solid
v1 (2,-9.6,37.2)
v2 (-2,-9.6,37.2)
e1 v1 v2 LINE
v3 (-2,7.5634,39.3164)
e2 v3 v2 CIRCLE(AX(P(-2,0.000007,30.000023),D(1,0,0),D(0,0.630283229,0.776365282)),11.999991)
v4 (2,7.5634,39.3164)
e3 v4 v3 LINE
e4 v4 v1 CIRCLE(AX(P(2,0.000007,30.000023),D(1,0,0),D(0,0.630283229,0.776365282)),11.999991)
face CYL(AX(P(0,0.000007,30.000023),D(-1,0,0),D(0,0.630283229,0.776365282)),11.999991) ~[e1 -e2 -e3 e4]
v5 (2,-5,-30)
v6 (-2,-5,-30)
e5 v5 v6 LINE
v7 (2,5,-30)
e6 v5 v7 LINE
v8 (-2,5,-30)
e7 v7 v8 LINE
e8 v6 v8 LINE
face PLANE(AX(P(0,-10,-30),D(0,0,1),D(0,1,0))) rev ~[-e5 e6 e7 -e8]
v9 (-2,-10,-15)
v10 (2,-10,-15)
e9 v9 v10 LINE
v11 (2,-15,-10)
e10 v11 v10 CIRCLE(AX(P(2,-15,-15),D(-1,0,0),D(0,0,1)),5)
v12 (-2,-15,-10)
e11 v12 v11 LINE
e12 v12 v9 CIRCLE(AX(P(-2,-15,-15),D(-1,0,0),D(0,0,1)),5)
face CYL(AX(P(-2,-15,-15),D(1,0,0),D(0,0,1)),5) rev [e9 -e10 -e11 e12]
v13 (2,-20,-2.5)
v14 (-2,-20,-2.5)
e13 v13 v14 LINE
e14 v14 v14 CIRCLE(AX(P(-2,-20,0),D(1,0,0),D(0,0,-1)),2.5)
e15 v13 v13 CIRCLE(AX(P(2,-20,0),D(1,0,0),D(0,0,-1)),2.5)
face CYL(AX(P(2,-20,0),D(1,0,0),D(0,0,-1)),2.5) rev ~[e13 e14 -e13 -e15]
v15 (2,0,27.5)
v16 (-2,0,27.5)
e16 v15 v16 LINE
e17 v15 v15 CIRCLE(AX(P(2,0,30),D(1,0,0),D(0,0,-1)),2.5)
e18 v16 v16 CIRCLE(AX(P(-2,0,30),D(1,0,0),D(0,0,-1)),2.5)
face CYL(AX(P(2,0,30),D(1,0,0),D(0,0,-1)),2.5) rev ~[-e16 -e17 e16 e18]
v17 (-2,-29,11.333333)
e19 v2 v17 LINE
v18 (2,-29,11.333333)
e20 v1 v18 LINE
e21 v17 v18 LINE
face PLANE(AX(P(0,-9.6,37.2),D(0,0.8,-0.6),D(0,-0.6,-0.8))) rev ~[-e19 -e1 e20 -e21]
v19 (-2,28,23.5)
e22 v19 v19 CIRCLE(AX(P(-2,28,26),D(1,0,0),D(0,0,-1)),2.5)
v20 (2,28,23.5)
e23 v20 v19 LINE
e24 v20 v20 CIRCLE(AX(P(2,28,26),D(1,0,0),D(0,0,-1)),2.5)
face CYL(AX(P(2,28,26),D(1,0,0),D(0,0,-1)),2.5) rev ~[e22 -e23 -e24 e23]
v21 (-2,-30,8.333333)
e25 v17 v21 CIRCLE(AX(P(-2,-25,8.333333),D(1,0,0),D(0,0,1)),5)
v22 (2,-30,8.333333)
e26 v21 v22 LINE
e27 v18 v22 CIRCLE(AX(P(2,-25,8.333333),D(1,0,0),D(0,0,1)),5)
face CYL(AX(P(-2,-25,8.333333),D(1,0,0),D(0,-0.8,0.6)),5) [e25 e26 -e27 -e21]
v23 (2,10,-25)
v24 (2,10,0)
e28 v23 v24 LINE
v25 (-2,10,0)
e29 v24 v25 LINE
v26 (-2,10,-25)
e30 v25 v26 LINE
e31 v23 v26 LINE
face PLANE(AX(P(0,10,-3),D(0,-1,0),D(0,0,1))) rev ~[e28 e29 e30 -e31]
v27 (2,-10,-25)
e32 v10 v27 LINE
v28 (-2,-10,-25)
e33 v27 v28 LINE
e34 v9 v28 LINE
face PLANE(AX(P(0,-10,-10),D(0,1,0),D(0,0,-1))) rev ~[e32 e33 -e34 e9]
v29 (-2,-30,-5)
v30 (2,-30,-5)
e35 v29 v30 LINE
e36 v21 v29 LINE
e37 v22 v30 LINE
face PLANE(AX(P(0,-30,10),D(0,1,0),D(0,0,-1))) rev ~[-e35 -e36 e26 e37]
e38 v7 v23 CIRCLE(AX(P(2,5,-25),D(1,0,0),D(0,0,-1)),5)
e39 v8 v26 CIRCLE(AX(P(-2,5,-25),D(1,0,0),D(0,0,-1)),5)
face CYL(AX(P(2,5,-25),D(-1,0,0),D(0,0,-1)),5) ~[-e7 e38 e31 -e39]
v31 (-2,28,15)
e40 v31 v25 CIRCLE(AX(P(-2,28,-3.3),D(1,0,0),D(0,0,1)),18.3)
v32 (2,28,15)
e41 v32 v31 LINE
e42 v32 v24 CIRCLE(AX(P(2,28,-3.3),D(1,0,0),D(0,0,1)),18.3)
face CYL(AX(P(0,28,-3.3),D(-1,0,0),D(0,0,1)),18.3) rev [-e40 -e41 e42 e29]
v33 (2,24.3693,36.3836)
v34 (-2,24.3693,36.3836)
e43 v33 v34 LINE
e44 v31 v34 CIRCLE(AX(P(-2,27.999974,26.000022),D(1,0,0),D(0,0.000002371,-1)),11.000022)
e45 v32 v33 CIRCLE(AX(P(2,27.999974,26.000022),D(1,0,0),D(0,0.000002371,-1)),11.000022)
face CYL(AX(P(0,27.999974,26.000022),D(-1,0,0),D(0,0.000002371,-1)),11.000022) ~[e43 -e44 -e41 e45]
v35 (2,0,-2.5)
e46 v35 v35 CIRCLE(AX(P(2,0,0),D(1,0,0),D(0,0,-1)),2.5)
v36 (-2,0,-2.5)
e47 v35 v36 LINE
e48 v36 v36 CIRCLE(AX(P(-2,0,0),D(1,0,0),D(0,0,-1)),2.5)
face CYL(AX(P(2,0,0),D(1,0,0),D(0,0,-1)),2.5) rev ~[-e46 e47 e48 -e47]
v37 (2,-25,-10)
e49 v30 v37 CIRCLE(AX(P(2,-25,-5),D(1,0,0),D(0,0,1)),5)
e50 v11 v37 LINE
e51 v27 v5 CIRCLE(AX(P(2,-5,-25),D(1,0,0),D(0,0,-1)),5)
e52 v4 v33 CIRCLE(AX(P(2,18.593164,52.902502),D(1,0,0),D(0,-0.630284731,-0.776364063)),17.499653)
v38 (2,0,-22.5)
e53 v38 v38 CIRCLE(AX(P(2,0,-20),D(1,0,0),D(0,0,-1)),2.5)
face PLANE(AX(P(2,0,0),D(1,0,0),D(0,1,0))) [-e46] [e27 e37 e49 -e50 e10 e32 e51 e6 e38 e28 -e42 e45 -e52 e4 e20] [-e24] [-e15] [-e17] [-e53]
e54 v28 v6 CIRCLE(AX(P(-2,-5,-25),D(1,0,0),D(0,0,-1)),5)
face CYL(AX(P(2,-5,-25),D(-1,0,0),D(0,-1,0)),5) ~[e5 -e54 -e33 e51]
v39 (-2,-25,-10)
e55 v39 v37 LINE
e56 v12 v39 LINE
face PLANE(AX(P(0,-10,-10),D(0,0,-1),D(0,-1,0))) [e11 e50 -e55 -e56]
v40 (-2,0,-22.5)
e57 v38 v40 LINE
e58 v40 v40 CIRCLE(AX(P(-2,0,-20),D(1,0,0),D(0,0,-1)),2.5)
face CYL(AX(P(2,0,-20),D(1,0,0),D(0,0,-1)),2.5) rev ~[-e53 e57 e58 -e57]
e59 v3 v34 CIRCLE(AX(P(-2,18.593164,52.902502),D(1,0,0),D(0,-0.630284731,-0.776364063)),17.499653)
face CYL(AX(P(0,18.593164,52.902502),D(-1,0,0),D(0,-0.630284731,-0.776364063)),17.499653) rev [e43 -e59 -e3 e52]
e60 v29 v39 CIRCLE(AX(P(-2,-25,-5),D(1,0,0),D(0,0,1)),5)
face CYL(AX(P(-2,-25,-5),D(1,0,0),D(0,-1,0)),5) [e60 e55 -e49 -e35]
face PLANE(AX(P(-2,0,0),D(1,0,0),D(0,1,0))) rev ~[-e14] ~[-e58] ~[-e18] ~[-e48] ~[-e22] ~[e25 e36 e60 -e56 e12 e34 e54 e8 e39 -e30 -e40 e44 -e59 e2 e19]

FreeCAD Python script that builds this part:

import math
import FreeCAD as App
import Part
import Sketcher

V = App.Vector


def edges_at(feature, points):
    """Names of the edges that pass closest to the given points."""
    edges = feature.Shape.Edges
    near = lambda p: min(range(len(edges)), key=lambda i: edges[i].distToShape(Part.Vertex(*p))[0])
    return sorted({f"Edge{near(p) + 1}" for p in points})

doc = App.newDocument("Part")
body = doc.addObject("PartDesign::Body", "Body")

# Sketch on YZ plane
sketch1 = body.newObject("Sketcher::SketchObject", "Sketch")
sketch1.AttachmentSupport = (doc.getObject("YZ_Plane"), [""])
sketch1.MapMode = "FlatFace"
sketch1.addGeometry([
    Part.LineSegment(V(-10, 37, 0), V(-30, 10, 0)),  # 0
    Part.LineSegment(V(-30, 10, 0), V(-30, -10, 0)),  # 1
    Part.LineSegment(V(-30, -10, 0), V(-10, -10, 0)),  # 2
    Part.LineSegment(V(-10, -10, 0), V(-10, -30, 0)),  # 3
    Part.LineSegment(V(-10, -30, 0), V(10, -30, 0)),  # 4
    Part.LineSegment(V(10, -30, 0), V(10, 0, 0)),  # 5
    Part.ArcOfCircle(Part.Circle(V(28, -3, 0), V(0, 0, 1), 18), math.radians(90), math.radians(170)),  # 6
    Part.ArcOfCircle(Part.Circle(V(28, 26, 0), V(0, 0, 1), 11), math.radians(-90), math.radians(109)),  # 7
    Part.ArcOfCircle(Part.Circle(V(19, 53, 0), V(0, 0, 1), 17), math.radians(-129), math.radians(-71)),  # 8
    Part.ArcOfCircle(Part.Circle(V(0, 30, 0), V(0, 0, 1), 12), math.radians(51), math.radians(143)),  # 9
], False)
sketch1.addConstraint([
    Sketcher.Constraint("Coincident", 0, 2, 1, 1),
    Sketcher.Constraint("Coincident", 1, 2, 2, 1),
    Sketcher.Constraint("Coincident", 2, 2, 3, 1),
    Sketcher.Constraint("Coincident", 3, 2, 4, 1),
    Sketcher.Constraint("Coincident", 4, 2, 5, 1),
    Sketcher.Constraint("Coincident", 5, 2, 6, 2),
    Sketcher.Constraint("Tangent", 6, 1, 7, 1),
    Sketcher.Constraint("Tangent", 7, 2, 8, 2),
    Sketcher.Constraint("Tangent", 8, 1, 9, 1),
    Sketcher.Constraint("Tangent", 9, 2, 0, 1),
    Sketcher.Constraint("Vertical", 1),
    Sketcher.Constraint("Horizontal", 2),
    Sketcher.Constraint("Vertical", 3),
    Sketcher.Constraint("Horizontal", 4),
    Sketcher.Constraint("Vertical", 5),
    Sketcher.Constraint("PointOnObject", 9, 3, -2),
    Sketcher.Constraint("PointOnObject", 5, 2, -1),
    Sketcher.Constraint("Vertical", 6, 3, 7, 3),
    Sketcher.Constraint("Equal", 2, 4),
    Sketcher.Constraint("Equal", 4, 1),
    Sketcher.Constraint("Equal", 1, 3),
    Sketcher.Constraint("Radius", 7, 11.0),
    Sketcher.Constraint("Radius", 9, 12.0),
    Sketcher.Constraint("Radius", 8, 17.5),
    Sketcher.Constraint("DistanceX", 2, 1, 2, 2, 20.0),
    Sketcher.Constraint("DistanceY", 5, 1, 5, 2, 30.0),
    Sketcher.Constraint("DistanceY", -1, 1, 7, 3, 26.0),
    Sketcher.Constraint("DistanceY", -1, 1, 9, 3, 30.0),
    Sketcher.Constraint("DistanceX", 0, 2, -1, 1, 30.0),
    Sketcher.Constraint("DistanceX", 4, 2, 6, 3, 18.0),
])
pad1 = body.newObject("PartDesign::Pad", "Pad")
pad1.Profile = sketch1
pad1.Length = 4
pad1.Midplane = True

# Sketch on YZ plane
sketch2 = body.newObject("Sketcher::SketchObject", "Sketch001")
sketch2.AttachmentSupport = (doc.getObject("YZ_Plane"), [""])
sketch2.MapMode = "FlatFace"
sketch2.AttachmentOffset = App.Placement(V(0, 0, 2), App.Rotation())
sketch2.addGeometry([
    Part.Circle(V(28, 26, 0), V(0, 0, 1), 2.5),  # 0
    Part.Circle(V(0, 0, 0), V(0, 0, 1), 2.5),  # 1
    Part.Circle(V(0, -20, 0), V(0, 0, 1), 2.5),  # 2
    Part.Circle(V(-20, 0, 0), V(0, 0, 1), 2.5),  # 3
    Part.Circle(V(0, 30, 0), V(0, 0, 1), 2.5),  # 4
], False)
sketch2.addConstraint([
    Sketcher.Constraint("Coincident", 1, 3, -1, 1),
    Sketcher.Constraint("Equal", 0, 1),
    Sketcher.Constraint("Equal", 1, 2),
    Sketcher.Constraint("Equal", 2, 3),
    Sketcher.Constraint("Equal", 3, 4),
    Sketcher.Constraint("PointOnObject", 2, 3, -2),
    Sketcher.Constraint("PointOnObject", 3, 3, -1),
    Sketcher.Constraint("PointOnObject", 4, 3, -2),
    Sketcher.Constraint("Diameter", 0, 5.0),
    Sketcher.Constraint("DistanceX", -1, 1, 0, 3, 28.0),
    Sketcher.Constraint("DistanceY", -1, 1, 0, 3, 26.0),
    Sketcher.Constraint("DistanceY", 2, 3, -1, 1, 20.0),
    Sketcher.Constraint("DistanceX", 3, 3, -1, 1, 20.0),
    Sketcher.Constraint("DistanceY", -1, 1, 4, 3, 30.0),
])
pocket1 = body.newObject("PartDesign::Pocket", "Pocket")
pocket1.Profile = sketch2
pocket1.Type = "ThroughAll"
pocket1.Midplane = True
doc.recompute()

fillet = body.newObject("PartDesign::Fillet", "Fillet")
fillet.Base = (pocket1, edges_at(pocket1, [
    (0, -30, -10),
    (0, -10, -10),
    (0, -10, -30),
    (0, 10, -30),
    (0, -30, 10),
]))
fillet.Radius = 5

doc.recompute()
